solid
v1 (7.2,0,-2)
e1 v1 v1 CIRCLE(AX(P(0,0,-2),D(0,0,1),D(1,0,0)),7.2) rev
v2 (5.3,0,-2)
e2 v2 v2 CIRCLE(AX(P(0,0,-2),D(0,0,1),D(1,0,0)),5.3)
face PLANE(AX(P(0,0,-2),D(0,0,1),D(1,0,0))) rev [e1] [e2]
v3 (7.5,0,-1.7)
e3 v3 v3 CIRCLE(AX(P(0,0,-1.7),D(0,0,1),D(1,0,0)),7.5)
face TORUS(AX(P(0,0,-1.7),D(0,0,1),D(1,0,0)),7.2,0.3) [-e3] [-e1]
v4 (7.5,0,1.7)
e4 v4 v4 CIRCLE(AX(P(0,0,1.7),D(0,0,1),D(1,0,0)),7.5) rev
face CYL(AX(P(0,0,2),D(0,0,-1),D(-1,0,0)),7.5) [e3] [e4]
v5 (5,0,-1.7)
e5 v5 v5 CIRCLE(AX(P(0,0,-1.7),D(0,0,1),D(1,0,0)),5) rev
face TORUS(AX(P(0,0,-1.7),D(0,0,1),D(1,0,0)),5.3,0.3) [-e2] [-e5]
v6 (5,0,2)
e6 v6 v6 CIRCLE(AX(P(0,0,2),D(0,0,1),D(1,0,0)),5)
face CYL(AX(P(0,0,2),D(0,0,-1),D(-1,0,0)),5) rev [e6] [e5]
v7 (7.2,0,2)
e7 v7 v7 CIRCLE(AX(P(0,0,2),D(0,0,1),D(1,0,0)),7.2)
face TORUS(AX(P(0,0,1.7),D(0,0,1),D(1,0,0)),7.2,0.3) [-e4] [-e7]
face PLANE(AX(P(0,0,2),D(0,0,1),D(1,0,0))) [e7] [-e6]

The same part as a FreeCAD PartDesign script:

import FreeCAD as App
import Part
import Sketcher


def edges_at(feature, points):
    """Names of the edges that pass closest to the given points."""
    edges = feature.Shape.Edges
    near = lambda p: min(range(len(edges)), key=lambda i: edges[i].distToShape(Part.Vertex(*p))[0])
    return sorted({f"Edge{near(p) + 1}" for p in points})

doc = App.newDocument("Part")
params = doc.addObject("Spreadsheet::Sheet", "Params")
for row, (alias, value) in enumerate([
    ("sketch1_diameter", "15 mm"),
    ("sketch1_diameter2", "10 mm"),
    ("pad1_length", "4 mm"),
    ("fillet_radius", "0.3 mm"),
], start=1):
    params.set(f"A{row}", alias)
    params.set(f"B{row}", "=" + value)
    params.setAlias(f"B{row}", alias)

body = doc.addObject("PartDesign::Body", "Body")

# Sketch on XY plane
sketch1 = doc.addObject("Sketcher::SketchObject", "Sketch")
body.addObject(sketch1)
sketch1.AttachmentSupport = (doc.XY_Plane, [""])
sketch1.MapMode = "FlatFace"
sketch1.addGeometry(Part.Circle(App.Vector(0, 0, 0), App.Vector(0, 0, 1), 8), False)
sketch1.addGeometry(Part.Circle(App.Vector(0, 0, 0), App.Vector(0, 0, 1), 5), False)
sketch1.addConstraint(Sketcher.Constraint("Coincident", 0, 3, -1, 1))
sketch1.addConstraint(Sketcher.Constraint("Coincident", 1, 3, -1, 1))
sketch1.addConstraint(Sketcher.Constraint("Diameter", 0, 15.0))
sketch1.addConstraint(Sketcher.Constraint("Diameter", 1, 10.0))
sketch1.setExpression("Constraints[2]", "Params.sketch1_diameter")
sketch1.setExpression("Constraints[3]", "Params.sketch1_diameter2")
pad1 = doc.addObject("PartDesign::Pad", "Pad")
body.addObject(pad1)
pad1.Profile = sketch1
pad1.setExpression("Length", "Params.pad1_length")
pad1.Midplane = True
doc.recompute()

fillet = doc.addObject("PartDesign::Fillet", "Fillet")
body.addObject(fillet)
fillet.Base = (pad1, edges_at(pad1, [(-7.5, 0, -2), (-7.5, 0, 2), (-5, 0, -2)]))
fillet.setExpression("Radius", "Params.fillet_radius")

doc.recompute()
